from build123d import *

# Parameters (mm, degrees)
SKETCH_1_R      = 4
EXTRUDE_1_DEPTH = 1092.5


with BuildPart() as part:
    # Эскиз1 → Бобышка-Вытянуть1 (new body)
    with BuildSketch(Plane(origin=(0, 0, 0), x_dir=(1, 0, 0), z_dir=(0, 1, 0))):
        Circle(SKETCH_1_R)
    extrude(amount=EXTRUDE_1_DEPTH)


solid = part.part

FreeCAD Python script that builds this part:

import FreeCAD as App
import Part
import Sketcher
Q = App.Units.Quantity

doc = App.newDocument("Part")
body = doc.addObject("PartDesign::Body", "Body")

# Sketch on XZ plane
sketch1 = doc.addObject("Sketcher::SketchObject", "Sketch")
body.addObject(sketch1)
sketch1.AttachmentSupport = (doc.XZ_Plane, [""])
sketch1.MapMode = "FlatFace"
sketch1.addGeometry(Part.Circle(App.Vector(0, 0, 0), App.Vector(0, 0, 1), 4), False)
sketch1.addConstraint([
    Sketcher.Constraint("Coincident", 0, 3, -1, 1),
    Sketcher.Constraint("Diameter", 0, Q("8 mm")),
])
pad1 = doc.addObject("PartDesign::Pad", "Pad")
body.addObject(pad1)
pad1.Profile = sketch1
pad1.Length = 1092.5
pad1.Reversed = True

doc.recompute()
